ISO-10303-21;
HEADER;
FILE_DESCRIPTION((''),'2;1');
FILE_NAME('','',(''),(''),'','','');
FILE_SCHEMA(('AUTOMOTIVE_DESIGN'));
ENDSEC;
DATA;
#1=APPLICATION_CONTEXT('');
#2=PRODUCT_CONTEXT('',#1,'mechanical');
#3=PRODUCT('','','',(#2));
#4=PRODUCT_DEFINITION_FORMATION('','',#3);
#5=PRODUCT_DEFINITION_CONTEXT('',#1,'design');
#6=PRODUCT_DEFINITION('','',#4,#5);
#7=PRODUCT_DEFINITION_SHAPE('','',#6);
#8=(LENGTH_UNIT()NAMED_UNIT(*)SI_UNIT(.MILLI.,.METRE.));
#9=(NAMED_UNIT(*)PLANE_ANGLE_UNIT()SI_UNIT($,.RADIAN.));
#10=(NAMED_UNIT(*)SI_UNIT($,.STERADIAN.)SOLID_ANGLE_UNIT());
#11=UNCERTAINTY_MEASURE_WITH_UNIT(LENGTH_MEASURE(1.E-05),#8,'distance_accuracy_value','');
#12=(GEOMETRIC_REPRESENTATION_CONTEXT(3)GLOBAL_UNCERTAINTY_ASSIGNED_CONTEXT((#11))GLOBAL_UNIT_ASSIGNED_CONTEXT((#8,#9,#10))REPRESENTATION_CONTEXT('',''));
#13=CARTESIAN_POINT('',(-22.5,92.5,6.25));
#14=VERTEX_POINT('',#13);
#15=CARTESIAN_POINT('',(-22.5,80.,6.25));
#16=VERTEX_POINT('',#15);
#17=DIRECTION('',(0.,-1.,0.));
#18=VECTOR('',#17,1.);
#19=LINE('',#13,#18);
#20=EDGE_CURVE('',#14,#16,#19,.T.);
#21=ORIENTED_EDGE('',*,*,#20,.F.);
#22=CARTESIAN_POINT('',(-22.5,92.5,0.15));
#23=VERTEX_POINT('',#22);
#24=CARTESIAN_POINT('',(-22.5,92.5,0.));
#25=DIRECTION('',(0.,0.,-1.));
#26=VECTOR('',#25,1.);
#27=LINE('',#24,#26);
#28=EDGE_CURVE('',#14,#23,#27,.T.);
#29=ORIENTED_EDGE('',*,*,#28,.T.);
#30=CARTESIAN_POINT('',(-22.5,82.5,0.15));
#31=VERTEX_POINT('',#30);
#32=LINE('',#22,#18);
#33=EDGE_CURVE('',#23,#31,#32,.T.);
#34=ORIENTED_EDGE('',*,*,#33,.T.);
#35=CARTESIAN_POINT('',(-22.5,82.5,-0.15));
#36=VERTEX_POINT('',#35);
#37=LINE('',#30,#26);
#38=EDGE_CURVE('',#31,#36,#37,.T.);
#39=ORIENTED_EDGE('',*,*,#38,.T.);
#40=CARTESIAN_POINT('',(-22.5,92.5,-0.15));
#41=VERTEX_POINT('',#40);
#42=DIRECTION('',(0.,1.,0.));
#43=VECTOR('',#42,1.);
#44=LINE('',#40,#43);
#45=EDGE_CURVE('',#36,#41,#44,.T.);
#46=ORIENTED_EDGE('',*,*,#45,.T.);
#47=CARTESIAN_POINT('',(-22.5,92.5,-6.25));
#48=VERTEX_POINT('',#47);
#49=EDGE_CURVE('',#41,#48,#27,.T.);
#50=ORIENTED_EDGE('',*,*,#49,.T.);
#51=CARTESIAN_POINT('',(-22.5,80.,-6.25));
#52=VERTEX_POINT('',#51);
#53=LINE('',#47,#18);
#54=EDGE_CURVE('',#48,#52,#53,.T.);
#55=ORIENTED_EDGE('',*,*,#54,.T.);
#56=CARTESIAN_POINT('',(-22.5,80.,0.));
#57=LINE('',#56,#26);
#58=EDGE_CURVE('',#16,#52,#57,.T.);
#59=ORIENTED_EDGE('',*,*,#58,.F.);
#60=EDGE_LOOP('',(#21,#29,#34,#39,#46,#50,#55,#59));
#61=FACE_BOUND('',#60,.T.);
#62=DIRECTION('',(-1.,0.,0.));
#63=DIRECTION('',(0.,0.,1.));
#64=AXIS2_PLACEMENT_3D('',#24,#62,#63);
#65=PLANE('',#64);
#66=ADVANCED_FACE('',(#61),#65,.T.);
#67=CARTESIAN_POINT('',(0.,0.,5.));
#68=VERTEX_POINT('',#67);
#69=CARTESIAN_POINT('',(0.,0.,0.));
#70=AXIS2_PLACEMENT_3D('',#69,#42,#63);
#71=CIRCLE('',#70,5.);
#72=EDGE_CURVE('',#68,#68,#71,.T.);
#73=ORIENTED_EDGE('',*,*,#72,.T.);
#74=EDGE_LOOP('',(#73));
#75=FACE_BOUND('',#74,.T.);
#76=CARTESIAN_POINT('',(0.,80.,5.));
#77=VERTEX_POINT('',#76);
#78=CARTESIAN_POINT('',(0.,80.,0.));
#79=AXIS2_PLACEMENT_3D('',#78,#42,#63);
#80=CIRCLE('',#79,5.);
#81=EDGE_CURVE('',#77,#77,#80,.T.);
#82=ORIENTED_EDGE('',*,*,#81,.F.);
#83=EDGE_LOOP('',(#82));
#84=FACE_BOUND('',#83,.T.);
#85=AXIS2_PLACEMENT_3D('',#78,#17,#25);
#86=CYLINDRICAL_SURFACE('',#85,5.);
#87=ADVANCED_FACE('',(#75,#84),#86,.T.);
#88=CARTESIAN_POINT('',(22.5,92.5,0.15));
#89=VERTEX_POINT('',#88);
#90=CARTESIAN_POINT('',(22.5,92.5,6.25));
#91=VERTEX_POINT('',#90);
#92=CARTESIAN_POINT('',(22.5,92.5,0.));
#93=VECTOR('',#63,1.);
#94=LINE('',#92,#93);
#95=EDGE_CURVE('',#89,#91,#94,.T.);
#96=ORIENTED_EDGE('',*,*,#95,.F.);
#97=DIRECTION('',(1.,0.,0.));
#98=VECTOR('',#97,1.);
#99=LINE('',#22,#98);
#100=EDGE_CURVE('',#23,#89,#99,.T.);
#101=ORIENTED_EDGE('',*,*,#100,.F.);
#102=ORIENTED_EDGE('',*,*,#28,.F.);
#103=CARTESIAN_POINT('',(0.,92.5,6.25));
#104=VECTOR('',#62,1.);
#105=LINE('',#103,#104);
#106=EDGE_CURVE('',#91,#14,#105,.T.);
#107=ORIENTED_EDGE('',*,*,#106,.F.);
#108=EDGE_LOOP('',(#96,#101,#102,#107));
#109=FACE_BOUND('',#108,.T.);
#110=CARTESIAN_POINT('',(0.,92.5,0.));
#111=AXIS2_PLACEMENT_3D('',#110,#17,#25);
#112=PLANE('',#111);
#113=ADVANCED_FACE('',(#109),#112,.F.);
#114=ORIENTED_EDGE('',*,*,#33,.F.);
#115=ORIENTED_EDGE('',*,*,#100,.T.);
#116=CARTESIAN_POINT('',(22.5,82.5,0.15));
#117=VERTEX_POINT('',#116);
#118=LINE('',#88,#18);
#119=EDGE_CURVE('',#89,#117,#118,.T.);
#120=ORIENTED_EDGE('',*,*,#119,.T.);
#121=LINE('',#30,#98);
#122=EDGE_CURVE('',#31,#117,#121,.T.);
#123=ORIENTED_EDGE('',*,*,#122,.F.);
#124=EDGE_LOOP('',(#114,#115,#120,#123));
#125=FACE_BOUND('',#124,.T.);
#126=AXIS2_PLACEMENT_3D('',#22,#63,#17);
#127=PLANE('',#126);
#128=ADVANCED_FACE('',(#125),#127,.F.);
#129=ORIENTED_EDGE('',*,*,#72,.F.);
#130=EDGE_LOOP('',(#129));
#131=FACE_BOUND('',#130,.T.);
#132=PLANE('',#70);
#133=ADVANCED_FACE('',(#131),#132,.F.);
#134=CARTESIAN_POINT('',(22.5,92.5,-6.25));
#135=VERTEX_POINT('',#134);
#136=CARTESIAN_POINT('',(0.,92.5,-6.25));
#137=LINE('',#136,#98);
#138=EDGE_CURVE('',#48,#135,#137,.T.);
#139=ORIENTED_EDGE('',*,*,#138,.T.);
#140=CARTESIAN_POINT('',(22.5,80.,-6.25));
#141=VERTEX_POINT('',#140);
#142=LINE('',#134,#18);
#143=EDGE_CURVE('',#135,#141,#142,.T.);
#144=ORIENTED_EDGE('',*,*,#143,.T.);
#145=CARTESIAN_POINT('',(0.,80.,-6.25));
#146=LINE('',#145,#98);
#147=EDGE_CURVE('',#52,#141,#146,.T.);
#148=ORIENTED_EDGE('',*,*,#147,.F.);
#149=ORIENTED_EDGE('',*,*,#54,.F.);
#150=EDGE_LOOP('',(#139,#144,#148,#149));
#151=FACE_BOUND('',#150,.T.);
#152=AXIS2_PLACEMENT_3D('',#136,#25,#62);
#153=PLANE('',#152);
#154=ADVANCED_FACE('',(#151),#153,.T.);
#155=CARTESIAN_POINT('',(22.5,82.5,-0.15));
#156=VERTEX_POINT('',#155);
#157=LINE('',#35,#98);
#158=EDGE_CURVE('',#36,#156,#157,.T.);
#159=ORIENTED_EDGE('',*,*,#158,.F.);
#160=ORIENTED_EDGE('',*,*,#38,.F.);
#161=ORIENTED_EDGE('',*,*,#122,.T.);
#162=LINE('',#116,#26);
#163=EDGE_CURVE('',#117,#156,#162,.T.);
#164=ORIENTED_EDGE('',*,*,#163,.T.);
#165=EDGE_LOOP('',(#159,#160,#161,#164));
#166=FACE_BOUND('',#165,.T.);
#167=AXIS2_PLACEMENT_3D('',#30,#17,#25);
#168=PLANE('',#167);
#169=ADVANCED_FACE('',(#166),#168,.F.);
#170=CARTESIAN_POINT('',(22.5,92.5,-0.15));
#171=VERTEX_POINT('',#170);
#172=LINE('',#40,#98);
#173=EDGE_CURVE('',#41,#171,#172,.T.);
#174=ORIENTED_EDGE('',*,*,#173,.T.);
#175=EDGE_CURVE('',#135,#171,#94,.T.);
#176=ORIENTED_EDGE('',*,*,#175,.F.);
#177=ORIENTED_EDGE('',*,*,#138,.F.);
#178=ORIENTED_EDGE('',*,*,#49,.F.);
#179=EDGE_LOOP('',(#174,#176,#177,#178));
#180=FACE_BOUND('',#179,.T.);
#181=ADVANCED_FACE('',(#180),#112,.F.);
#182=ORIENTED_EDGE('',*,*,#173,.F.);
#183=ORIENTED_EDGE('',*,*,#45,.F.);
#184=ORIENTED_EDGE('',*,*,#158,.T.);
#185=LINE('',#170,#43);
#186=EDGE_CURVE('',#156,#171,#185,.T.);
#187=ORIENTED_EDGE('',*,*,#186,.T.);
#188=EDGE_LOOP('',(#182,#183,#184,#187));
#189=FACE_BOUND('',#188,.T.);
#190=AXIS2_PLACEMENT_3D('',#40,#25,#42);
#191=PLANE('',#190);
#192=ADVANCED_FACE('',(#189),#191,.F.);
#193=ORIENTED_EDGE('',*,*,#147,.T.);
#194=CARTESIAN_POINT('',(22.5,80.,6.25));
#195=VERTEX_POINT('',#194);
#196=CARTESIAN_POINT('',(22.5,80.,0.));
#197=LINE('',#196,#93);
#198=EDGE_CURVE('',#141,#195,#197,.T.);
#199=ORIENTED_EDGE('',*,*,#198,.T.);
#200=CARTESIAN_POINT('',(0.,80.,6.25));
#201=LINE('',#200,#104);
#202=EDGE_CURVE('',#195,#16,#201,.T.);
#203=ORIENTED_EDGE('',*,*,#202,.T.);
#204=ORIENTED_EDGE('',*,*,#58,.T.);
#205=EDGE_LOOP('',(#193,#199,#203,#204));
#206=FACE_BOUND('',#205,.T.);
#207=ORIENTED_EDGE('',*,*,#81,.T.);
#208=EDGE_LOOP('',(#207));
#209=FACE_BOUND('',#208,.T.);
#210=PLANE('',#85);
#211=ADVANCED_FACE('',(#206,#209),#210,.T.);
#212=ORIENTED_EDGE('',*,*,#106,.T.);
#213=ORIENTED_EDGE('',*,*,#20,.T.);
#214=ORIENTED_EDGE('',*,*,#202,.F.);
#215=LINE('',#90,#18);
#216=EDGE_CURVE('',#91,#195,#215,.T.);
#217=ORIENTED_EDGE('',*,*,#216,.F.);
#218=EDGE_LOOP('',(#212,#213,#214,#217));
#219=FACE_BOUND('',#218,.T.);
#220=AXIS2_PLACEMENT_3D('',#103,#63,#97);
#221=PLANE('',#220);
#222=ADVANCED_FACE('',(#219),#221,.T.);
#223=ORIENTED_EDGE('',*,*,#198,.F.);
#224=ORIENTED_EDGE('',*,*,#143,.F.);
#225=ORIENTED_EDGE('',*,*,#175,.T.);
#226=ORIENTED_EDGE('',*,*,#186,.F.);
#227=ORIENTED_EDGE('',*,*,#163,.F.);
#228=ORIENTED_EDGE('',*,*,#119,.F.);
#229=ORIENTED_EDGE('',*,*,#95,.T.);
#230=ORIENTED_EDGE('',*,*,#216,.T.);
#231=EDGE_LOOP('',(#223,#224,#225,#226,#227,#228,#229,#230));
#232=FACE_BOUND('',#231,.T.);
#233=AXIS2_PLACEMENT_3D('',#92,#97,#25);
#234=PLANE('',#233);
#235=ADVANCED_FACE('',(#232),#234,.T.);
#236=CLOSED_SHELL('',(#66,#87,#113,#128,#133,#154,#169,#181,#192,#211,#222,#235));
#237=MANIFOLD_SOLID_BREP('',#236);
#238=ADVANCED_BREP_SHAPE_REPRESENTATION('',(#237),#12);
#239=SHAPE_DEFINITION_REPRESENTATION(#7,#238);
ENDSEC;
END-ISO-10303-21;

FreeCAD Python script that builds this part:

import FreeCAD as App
import Part
import Sketcher
from FreeCAD import Vector

doc = App.newDocument("Part")
body = doc.addObject("PartDesign::Body", "Body")

# Sketch on XZ plane
sketch1 = body.newObject("Sketcher::SketchObject", "Sketch")
sketch1.AttachmentSupport = (doc.getObject("XZ_Plane"), [""])
sketch1.MapMode = "FlatFace"
sketch1.addGeometry(Part.Circle(Vector(0, 0, 0), Vector(0, 0, 1), 5), False)
sketch1.addConstraint(Sketcher.Constraint("Coincident", 0, 3, -1, 1))
sketch1.addConstraint(Sketcher.Constraint("Diameter", 0, 10.0))
pad1 = body.newObject("PartDesign::Pad", "Pad")
pad1.Profile = sketch1
pad1.Length = 80
pad1.Reversed = True

# Sketch on XZ plane
sketch2 = body.newObject("Sketcher::SketchObject", "Sketch001")
sketch2.AttachmentSupport = (doc.getObject("XZ_Plane"), [""])
sketch2.MapMode = "FlatFace"
sketch2.AttachmentOffset = App.Placement(Vector(0, 0, -80), App.Rotation())
sketch2.addGeometry(Part.LineSegment(Vector(-22, -6, 0), Vector(-22, 6, 0)), False)
sketch2.addGeometry(Part.LineSegment(Vector(-22, 6, 0), Vector(22, 6, 0)), False)
sketch2.addGeometry(Part.LineSegment(Vector(22, 6, 0), Vector(22, -6, 0)), False)
sketch2.addGeometry(Part.LineSegment(Vector(22, -6, 0), Vector(-22, -6, 0)), False)
sketch2.addConstraint(Sketcher.Constraint("Coincident", 0, 2, 1, 1))
sketch2.addConstraint(Sketcher.Constraint("Coincident", 1, 2, 2, 1))
sketch2.addConstraint(Sketcher.Constraint("Coincident", 2, 2, 3, 1))
sketch2.addConstraint(Sketcher.Constraint("Coincident", 3, 2, 0, 1))
sketch2.addConstraint(Sketcher.Constraint("Vertical", 0))
sketch2.addConstraint(Sketcher.Constraint("Horizontal", 1))
sketch2.addConstraint(Sketcher.Constraint("Vertical", 2))
sketch2.addConstraint(Sketcher.Constraint("Horizontal", 3))
sketch2.addConstraint(Sketcher.Constraint("Symmetric", 0, 2, 2, 2, -1, 1))
sketch2.addConstraint(Sketcher.Constraint("DistanceX", 1, 1, 1, 2, 45.0))
sketch2.addConstraint(Sketcher.Constraint("DistanceY", 0, 1, 0, 2, 12.5))
pad2 = body.newObject("PartDesign::Pad", "Pad001")
pad2.Profile = sketch2
pad2.Length = 12.5
pad2.Reversed = True

# Sketch on YZ plane
sketch3 = body.newObject("Sketcher::SketchObject", "Sketch002")
sketch3.AttachmentSupport = (doc.getObject("YZ_Plane"), [""])
sketch3.MapMode = "FlatFace"
sketch3.addGeometry(Part.LineSegment(Vector(92.5, 0.15, 0), Vector(82.5, 0.15, 0)), False)
sketch3.addGeometry(Part.LineSegment(Vector(82.5, 0.15, 0), Vector(82.5, -0.15, 0)), False)
sketch3.addGeometry(Part.LineSegment(Vector(82.5, -0.15, 0), Vector(92.5, -0.15, 0)), False)
sketch3.addGeometry(Part.LineSegment(Vector(92.5, -0.15, 0), Vector(92.5, 0.15, 0)), False)
sketch3.addConstraint(Sketcher.Constraint("Coincident", 0, 2, 1, 1))
sketch3.addConstraint(Sketcher.Constraint("Coincident", 1, 2, 2, 1))
sketch3.addConstraint(Sketcher.Constraint("Coincident", 2, 2, 3, 1))
sketch3.addConstraint(Sketcher.Constraint("Coincident", 3, 2, 0, 1))
sketch3.addConstraint(Sketcher.Constraint("Horizontal", 0))
sketch3.addConstraint(Sketcher.Constraint("Vertical", 1))
sketch3.addConstraint(Sketcher.Constraint("Horizontal", 2))
sketch3.addConstraint(Sketcher.Constraint("Vertical", 3))
sketch3.addConstraint(Sketcher.Constraint("DistanceX", 0, 2, 0, 1, 10.0))
sketch3.addConstraint(Sketcher.Constraint("DistanceY", 1, 2, 1, 1, 0.3))
sketch3.addConstraint(Sketcher.Constraint("DistanceX", -1, 1, 0, 2, 82.5))
sketch3.addConstraint(Sketcher.Constraint("DistanceY", -1, 1, 0, 2, 0.15))
pocket1 = body.newObject("PartDesign::Pocket", "Pocket")
pocket1.Profile = sketch3
pocket1.Type = "ThroughAll"
pocket1.Midplane = True

doc.recompute()
